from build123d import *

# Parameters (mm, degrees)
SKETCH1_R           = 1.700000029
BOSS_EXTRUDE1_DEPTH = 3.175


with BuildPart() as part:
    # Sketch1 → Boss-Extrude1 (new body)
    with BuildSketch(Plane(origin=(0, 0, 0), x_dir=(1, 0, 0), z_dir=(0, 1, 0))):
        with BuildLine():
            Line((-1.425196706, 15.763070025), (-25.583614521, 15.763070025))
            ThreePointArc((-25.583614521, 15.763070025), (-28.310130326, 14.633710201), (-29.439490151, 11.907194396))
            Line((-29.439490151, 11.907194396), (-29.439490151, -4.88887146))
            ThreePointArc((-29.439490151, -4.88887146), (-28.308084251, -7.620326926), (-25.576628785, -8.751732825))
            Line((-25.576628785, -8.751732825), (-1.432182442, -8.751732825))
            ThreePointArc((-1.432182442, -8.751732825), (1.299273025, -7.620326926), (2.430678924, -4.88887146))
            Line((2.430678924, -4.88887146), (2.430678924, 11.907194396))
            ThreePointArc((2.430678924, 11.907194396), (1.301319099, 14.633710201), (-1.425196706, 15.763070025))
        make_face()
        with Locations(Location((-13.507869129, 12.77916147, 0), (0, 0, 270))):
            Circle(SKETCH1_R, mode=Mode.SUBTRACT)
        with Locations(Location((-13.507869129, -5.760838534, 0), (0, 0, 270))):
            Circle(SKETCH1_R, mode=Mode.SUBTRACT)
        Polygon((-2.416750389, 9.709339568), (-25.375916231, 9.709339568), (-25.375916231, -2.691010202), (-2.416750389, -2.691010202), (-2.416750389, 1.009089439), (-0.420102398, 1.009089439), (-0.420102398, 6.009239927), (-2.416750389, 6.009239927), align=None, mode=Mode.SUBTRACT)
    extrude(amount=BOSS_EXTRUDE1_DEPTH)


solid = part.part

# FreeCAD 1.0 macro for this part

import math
import FreeCAD as App
import Part
import Sketcher
from FreeCAD import Vector
Q = App.Units.Quantity

doc = App.newDocument("Part")
params = doc.addObject("Spreadsheet::Sheet", "Params")
for row, (alias, value) in enumerate([
    ("sketch1_diameter", "3.4 mm"),
    ("pad1_length", "3.175 mm"),
], start=1):
    params.set(f"A{row}", alias)
    params.set(f"B{row}", "=" + value)
    params.setAlias(f"B{row}", alias)

body = doc.addObject("PartDesign::Body", "Body")

sketch1 = doc.addObject("Sketcher::SketchObject", "Sketch")
body.addObject(sketch1)
sketch1.AttachmentSupport = (doc.XZ_Plane, [""])
sketch1.MapMode = "FlatFace"
sketch1.addGeometry(Part.LineSegment(Vector(-1.4, -15.8, 0), Vector(-25.6, -15.8, 0)), False)
sketch1.addGeometry(Part.ArcOfCircle(Part.Circle(Vector(-25.6, -11.9, 0), Vector(0, 0, 1), 3.9), math.radians(-180), math.radians(-90)), False)
sketch1.addGeometry(Part.LineSegment(Vector(-29.4, -11.9, 0), Vector(-29.4, 4.9, 0)), False)
sketch1.addGeometry(Part.ArcOfCircle(Part.Circle(Vector(-25.6, 4.9, 0), Vector(0, 0, 1), 3.9), math.radians(90), math.radians(180)), False)
sketch1.addGeometry(Part.LineSegment(Vector(-25.6, 8.8, 0), Vector(-1.4, 8.8, 0)), False)
sketch1.addGeometry(Part.ArcOfCircle(Part.Circle(Vector(-1.4, 4.9, 0), Vector(0, 0, 1), 3.9), math.radians(0), math.radians(90)), False)
sketch1.addGeometry(Part.LineSegment(Vector(2.4, 4.9, 0), Vector(2.4, -11.9, 0)), False)
sketch1.addGeometry(Part.ArcOfCircle(Part.Circle(Vector(-1.4, -11.9, 0), Vector(0, 0, 1), 3.9), math.radians(-90), math.radians(0)), False)
sketch1.addGeometry(Part.Circle(Vector(-13.5, 5.8, 0), Vector(0, 0, 1), 1.7), False)
sketch1.addGeometry(Part.Circle(Vector(-13.5, -12.8, 0), Vector(0, 0, 1), 1.7), False)
sketch1.addGeometry(Part.LineSegment(Vector(-25.4, -9.7, 0), Vector(-2.4, -9.7, 0)), False)
sketch1.addGeometry(Part.LineSegment(Vector(-2.4, -9.7, 0), Vector(-2.4, -6, 0)), False)
sketch1.addGeometry(Part.LineSegment(Vector(-2.4, -6, 0), Vector(-0.4, -6, 0)), False)
sketch1.addGeometry(Part.LineSegment(Vector(-0.4, -6, 0), Vector(-0.4, -1, 0)), False)
sketch1.addGeometry(Part.LineSegment(Vector(-0.4, -1, 0), Vector(-2.4, -1, 0)), False)
sketch1.addGeometry(Part.LineSegment(Vector(-2.4, -1, 0), Vector(-2.4, 2.7, 0)), False)
sketch1.addGeometry(Part.LineSegment(Vector(-2.4, 2.7, 0), Vector(-25.4, 2.7, 0)), False)
sketch1.addGeometry(Part.LineSegment(Vector(-25.4, 2.7, 0), Vector(-25.4, -9.7, 0)), False)
sketch1.addConstraint(Sketcher.Constraint("Tangent", 0, 2, 1, 2))
sketch1.addConstraint(Sketcher.Constraint("Tangent", 1, 1, 2, 1))
sketch1.addConstraint(Sketcher.Constraint("Tangent", 2, 2, 3, 2))
sketch1.addConstraint(Sketcher.Constraint("Tangent", 3, 1, 4, 1))
sketch1.addConstraint(Sketcher.Constraint("Tangent", 4, 2, 5, 2))
sketch1.addConstraint(Sketcher.Constraint("Tangent", 5, 1, 6, 1))
sketch1.addConstraint(Sketcher.Constraint("Tangent", 6, 2, 7, 2))
sketch1.addConstraint(Sketcher.Constraint("Tangent", 7, 1, 0, 1))
sketch1.addConstraint(Sketcher.Constraint("Coincident", 10, 2, 11, 1))
sketch1.addConstraint(Sketcher.Constraint("Coincident", 11, 2, 12, 1))
sketch1.addConstraint(Sketcher.Constraint("Coincident", 12, 2, 13, 1))
sketch1.addConstraint(Sketcher.Constraint("Coincident", 13, 2, 14, 1))
sketch1.addConstraint(Sketcher.Constraint("Coincident", 14, 2, 15, 1))
sketch1.addConstraint(Sketcher.Constraint("Coincident", 15, 2, 16, 1))
sketch1.addConstraint(Sketcher.Constraint("Coincident", 16, 2, 17, 1))
sketch1.addConstraint(Sketcher.Constraint("Coincident", 17, 2, 10, 1))
sketch1.addConstraint(Sketcher.Constraint("Horizontal", 0))
sketch1.addConstraint(Sketcher.Constraint("Vertical", 2))
sketch1.addConstraint(Sketcher.Constraint("Horizontal", 4))
sketch1.addConstraint(Sketcher.Constraint("Vertical", 6))
sketch1.addConstraint(Sketcher.Constraint("Horizontal", 10))
sketch1.addConstraint(Sketcher.Constraint("Vertical", 11))
sketch1.addConstraint(Sketcher.Constraint("Horizontal", 12))
sketch1.addConstraint(Sketcher.Constraint("Vertical", 13))
sketch1.addConstraint(Sketcher.Constraint("Horizontal", 14))
sketch1.addConstraint(Sketcher.Constraint("Vertical", 15))
sketch1.addConstraint(Sketcher.Constraint("Horizontal", 16))
sketch1.addConstraint(Sketcher.Constraint("Vertical", 17))
sketch1.addConstraint(Sketcher.Constraint("Equal", 3, 5))
sketch1.addConstraint(Sketcher.Constraint("Equal", 1, 7))
sketch1.addConstraint(Sketcher.Constraint("Equal", 8, 9))
sketch1.addConstraint(Sketcher.Constraint("Vertical", 8, 3, 9, 3))
sketch1.addConstraint(Sketcher.Constraint("Vertical", 11, 2, 14, 2))
sketch1.addConstraint(Sketcher.Constraint("Equal", 11, 15))
sketch1.addConstraint(Sketcher.Constraint("Diameter", 8, Q("3.4 mm")))
sketch1.addConstraint(Sketcher.Constraint("Radius", 3, Q("3.862861 mm")))
sketch1.addConstraint(Sketcher.Constraint("DistanceY", 9, 3, 8, 3, Q("18.54 mm")))
sketch1.addConstraint(Sketcher.Constraint("DistanceY", 11, 1, 11, 2, Q("3.7001 mm")))
sketch1.addConstraint(Sketcher.Constraint("Radius", 1, Q("3.855876 mm")))
sketch1.addConstraint(Sketcher.Constraint("DistanceY", 13, 1, 13, 2, Q("5.00015 mm")))
sketch1.addConstraint(Sketcher.Constraint("DistanceX", 1, 3, 16, 2, Q("0.207698 mm")))
sketch1.addConstraint(Sketcher.Constraint("DistanceX", 0, 2, 0, 1, Q("24.158418 mm")))
sketch1.addConstraint(Sketcher.Constraint("DistanceX", 10, 1, 10, 2, Q("22.959166 mm")))
sketch1.addConstraint(Sketcher.Constraint("DistanceX", 12, 1, 12, 2, Q("1.996648 mm")))
sketch1.addConstraint(Sketcher.Constraint("DistanceY", 2, 1, 2, 2, Q("16.796066 mm")))
sketch1.addConstraint(Sketcher.Constraint("DistanceX", 3, 3, -1, 1, Q("25.576629 mm")))
sketch1.addConstraint(Sketcher.Constraint("DistanceY", -1, 1, 3, 3, Q("4.888871 mm")))
sketch1.addConstraint(Sketcher.Constraint("DistanceX", 8, 3, -1, 1, Q("13.507869 mm")))
sketch1.addConstraint(Sketcher.Constraint("DistanceY", -1, 1, 8, 3, Q("5.760839 mm")))
sketch1.addConstraint(Sketcher.Constraint("DistanceY", 10, 2, -1, 1, Q("9.70934 mm")))
sketch1.setExpression("Constraints[34]", "Params.sketch1_diameter")
pad1 = doc.addObject("PartDesign::Pad", "Pad")
body.addObject(pad1)
pad1.Profile = sketch1
pad1.setExpression("Length", "Params.pad1_length")
pad1.Reversed = True

doc.recompute()
